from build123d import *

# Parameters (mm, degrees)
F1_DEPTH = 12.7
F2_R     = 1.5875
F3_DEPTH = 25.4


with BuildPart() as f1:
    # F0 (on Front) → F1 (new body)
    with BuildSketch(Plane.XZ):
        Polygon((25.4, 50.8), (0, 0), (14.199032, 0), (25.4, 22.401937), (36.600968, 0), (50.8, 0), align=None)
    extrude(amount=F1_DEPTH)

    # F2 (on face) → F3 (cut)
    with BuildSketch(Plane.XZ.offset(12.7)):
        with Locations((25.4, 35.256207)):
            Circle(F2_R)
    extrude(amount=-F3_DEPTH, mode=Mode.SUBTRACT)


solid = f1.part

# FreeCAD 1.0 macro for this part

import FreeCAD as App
import Part
import Sketcher
from FreeCAD import Vector
Q = App.Units.Quantity

doc = App.newDocument("Part")
params = doc.addObject("Spreadsheet::Sheet", "Params")
for row, (alias, value) in enumerate([
    ("pad1_length", "0.5 in"),
    ("sketch2_diameter", "0.125 in"),
    ("pocket1_length", "1 in"),
], start=1):
    params.set(f"A{row}", alias)
    params.set(f"B{row}", "=" + value)
    params.setAlias(f"B{row}", alias)

body = doc.addObject("PartDesign::Body", "Body")

sketch1 = doc.addObject("Sketcher::SketchObject", "Sketch")
body.addObject(sketch1)
sketch1.AttachmentSupport = (doc.XZ_Plane, [""])
sketch1.MapMode = "FlatFace"
sketch1.addGeometry([
    Part.LineSegment(Vector(25, 51, 0), Vector(0, 0, 0)),
    Part.LineSegment(Vector(0, 0, 0), Vector(14, 0, 0)),
    Part.LineSegment(Vector(14, 0, 0), Vector(25, 22, 0)),
    Part.LineSegment(Vector(25, 22, 0), Vector(37, 0, 0)),
    Part.LineSegment(Vector(37, 0, 0), Vector(51, 0, 0)),
    Part.LineSegment(Vector(51, 0, 0), Vector(25, 51, 0)),
], False)
sketch1.addConstraint([
    Sketcher.Constraint("Coincident", 0, 2, 1, 1),
    Sketcher.Constraint("Coincident", 1, 2, 2, 1),
    Sketcher.Constraint("Coincident", 2, 2, 3, 1),
    Sketcher.Constraint("Coincident", 3, 2, 4, 1),
    Sketcher.Constraint("Coincident", 4, 2, 5, 1),
    Sketcher.Constraint("Coincident", 5, 2, 0, 1),
    Sketcher.Constraint("Horizontal", 1),
    Sketcher.Constraint("Horizontal", 4),
    Sketcher.Constraint("Coincident", 0, 2, -1, 1),
    Sketcher.Constraint("PointOnObject", 3, 2, -1),
    Sketcher.Constraint("Parallel", 0, 2),
    Sketcher.Constraint("Parallel", 3, 5),
    Sketcher.Constraint("Vertical", 2, 2, 5, 2),
    Sketcher.Constraint("Equal", 1, 4),
    Sketcher.Constraint("DistanceX", -1, 1, 2, 2, Q("1 in")),
    Sketcher.Constraint("DistanceY", -1, 1, 5, 2, Q("2 in")),
    Sketcher.Constraint("DistanceX", 4, 1, 4, 2, Q("14.199032 mm")),
])
pad1 = doc.addObject("PartDesign::Pad", "Pad")
body.addObject(pad1)
pad1.Profile = sketch1
pad1.setExpression("Length", "Params.pad1_length")

sketch2 = doc.addObject("Sketcher::SketchObject", "Sketch001")
body.addObject(sketch2)
sketch2.AttachmentSupport = (doc.XZ_Plane, [""])
sketch2.MapMode = "FlatFace"
sketch2.AttachmentOffset = App.Placement(Vector(0, 0, 0.5 * 25.4), App.Rotation())
sketch2.addGeometry(Part.Circle(Vector(25.4, 35.3, 0), Vector(0, 0, 1), 1.6), False)
sketch2.addConstraint([
    Sketcher.Constraint("Diameter", 0, Q("0.125 in")),
    Sketcher.Constraint("DistanceX", -1, 1, 0, 3, Q("1 in")),
    Sketcher.Constraint("DistanceY", -1, 1, 0, 3, Q("35.256207 mm")),
])
sketch2.setExpression("Constraints[0]", "Params.sketch2_diameter")
pocket1 = doc.addObject("PartDesign::Pocket", "Pocket")
body.addObject(pocket1)
pocket1.Profile = sketch2
pocket1.setExpression("Length", "Params.pocket1_length")

doc.recompute()
